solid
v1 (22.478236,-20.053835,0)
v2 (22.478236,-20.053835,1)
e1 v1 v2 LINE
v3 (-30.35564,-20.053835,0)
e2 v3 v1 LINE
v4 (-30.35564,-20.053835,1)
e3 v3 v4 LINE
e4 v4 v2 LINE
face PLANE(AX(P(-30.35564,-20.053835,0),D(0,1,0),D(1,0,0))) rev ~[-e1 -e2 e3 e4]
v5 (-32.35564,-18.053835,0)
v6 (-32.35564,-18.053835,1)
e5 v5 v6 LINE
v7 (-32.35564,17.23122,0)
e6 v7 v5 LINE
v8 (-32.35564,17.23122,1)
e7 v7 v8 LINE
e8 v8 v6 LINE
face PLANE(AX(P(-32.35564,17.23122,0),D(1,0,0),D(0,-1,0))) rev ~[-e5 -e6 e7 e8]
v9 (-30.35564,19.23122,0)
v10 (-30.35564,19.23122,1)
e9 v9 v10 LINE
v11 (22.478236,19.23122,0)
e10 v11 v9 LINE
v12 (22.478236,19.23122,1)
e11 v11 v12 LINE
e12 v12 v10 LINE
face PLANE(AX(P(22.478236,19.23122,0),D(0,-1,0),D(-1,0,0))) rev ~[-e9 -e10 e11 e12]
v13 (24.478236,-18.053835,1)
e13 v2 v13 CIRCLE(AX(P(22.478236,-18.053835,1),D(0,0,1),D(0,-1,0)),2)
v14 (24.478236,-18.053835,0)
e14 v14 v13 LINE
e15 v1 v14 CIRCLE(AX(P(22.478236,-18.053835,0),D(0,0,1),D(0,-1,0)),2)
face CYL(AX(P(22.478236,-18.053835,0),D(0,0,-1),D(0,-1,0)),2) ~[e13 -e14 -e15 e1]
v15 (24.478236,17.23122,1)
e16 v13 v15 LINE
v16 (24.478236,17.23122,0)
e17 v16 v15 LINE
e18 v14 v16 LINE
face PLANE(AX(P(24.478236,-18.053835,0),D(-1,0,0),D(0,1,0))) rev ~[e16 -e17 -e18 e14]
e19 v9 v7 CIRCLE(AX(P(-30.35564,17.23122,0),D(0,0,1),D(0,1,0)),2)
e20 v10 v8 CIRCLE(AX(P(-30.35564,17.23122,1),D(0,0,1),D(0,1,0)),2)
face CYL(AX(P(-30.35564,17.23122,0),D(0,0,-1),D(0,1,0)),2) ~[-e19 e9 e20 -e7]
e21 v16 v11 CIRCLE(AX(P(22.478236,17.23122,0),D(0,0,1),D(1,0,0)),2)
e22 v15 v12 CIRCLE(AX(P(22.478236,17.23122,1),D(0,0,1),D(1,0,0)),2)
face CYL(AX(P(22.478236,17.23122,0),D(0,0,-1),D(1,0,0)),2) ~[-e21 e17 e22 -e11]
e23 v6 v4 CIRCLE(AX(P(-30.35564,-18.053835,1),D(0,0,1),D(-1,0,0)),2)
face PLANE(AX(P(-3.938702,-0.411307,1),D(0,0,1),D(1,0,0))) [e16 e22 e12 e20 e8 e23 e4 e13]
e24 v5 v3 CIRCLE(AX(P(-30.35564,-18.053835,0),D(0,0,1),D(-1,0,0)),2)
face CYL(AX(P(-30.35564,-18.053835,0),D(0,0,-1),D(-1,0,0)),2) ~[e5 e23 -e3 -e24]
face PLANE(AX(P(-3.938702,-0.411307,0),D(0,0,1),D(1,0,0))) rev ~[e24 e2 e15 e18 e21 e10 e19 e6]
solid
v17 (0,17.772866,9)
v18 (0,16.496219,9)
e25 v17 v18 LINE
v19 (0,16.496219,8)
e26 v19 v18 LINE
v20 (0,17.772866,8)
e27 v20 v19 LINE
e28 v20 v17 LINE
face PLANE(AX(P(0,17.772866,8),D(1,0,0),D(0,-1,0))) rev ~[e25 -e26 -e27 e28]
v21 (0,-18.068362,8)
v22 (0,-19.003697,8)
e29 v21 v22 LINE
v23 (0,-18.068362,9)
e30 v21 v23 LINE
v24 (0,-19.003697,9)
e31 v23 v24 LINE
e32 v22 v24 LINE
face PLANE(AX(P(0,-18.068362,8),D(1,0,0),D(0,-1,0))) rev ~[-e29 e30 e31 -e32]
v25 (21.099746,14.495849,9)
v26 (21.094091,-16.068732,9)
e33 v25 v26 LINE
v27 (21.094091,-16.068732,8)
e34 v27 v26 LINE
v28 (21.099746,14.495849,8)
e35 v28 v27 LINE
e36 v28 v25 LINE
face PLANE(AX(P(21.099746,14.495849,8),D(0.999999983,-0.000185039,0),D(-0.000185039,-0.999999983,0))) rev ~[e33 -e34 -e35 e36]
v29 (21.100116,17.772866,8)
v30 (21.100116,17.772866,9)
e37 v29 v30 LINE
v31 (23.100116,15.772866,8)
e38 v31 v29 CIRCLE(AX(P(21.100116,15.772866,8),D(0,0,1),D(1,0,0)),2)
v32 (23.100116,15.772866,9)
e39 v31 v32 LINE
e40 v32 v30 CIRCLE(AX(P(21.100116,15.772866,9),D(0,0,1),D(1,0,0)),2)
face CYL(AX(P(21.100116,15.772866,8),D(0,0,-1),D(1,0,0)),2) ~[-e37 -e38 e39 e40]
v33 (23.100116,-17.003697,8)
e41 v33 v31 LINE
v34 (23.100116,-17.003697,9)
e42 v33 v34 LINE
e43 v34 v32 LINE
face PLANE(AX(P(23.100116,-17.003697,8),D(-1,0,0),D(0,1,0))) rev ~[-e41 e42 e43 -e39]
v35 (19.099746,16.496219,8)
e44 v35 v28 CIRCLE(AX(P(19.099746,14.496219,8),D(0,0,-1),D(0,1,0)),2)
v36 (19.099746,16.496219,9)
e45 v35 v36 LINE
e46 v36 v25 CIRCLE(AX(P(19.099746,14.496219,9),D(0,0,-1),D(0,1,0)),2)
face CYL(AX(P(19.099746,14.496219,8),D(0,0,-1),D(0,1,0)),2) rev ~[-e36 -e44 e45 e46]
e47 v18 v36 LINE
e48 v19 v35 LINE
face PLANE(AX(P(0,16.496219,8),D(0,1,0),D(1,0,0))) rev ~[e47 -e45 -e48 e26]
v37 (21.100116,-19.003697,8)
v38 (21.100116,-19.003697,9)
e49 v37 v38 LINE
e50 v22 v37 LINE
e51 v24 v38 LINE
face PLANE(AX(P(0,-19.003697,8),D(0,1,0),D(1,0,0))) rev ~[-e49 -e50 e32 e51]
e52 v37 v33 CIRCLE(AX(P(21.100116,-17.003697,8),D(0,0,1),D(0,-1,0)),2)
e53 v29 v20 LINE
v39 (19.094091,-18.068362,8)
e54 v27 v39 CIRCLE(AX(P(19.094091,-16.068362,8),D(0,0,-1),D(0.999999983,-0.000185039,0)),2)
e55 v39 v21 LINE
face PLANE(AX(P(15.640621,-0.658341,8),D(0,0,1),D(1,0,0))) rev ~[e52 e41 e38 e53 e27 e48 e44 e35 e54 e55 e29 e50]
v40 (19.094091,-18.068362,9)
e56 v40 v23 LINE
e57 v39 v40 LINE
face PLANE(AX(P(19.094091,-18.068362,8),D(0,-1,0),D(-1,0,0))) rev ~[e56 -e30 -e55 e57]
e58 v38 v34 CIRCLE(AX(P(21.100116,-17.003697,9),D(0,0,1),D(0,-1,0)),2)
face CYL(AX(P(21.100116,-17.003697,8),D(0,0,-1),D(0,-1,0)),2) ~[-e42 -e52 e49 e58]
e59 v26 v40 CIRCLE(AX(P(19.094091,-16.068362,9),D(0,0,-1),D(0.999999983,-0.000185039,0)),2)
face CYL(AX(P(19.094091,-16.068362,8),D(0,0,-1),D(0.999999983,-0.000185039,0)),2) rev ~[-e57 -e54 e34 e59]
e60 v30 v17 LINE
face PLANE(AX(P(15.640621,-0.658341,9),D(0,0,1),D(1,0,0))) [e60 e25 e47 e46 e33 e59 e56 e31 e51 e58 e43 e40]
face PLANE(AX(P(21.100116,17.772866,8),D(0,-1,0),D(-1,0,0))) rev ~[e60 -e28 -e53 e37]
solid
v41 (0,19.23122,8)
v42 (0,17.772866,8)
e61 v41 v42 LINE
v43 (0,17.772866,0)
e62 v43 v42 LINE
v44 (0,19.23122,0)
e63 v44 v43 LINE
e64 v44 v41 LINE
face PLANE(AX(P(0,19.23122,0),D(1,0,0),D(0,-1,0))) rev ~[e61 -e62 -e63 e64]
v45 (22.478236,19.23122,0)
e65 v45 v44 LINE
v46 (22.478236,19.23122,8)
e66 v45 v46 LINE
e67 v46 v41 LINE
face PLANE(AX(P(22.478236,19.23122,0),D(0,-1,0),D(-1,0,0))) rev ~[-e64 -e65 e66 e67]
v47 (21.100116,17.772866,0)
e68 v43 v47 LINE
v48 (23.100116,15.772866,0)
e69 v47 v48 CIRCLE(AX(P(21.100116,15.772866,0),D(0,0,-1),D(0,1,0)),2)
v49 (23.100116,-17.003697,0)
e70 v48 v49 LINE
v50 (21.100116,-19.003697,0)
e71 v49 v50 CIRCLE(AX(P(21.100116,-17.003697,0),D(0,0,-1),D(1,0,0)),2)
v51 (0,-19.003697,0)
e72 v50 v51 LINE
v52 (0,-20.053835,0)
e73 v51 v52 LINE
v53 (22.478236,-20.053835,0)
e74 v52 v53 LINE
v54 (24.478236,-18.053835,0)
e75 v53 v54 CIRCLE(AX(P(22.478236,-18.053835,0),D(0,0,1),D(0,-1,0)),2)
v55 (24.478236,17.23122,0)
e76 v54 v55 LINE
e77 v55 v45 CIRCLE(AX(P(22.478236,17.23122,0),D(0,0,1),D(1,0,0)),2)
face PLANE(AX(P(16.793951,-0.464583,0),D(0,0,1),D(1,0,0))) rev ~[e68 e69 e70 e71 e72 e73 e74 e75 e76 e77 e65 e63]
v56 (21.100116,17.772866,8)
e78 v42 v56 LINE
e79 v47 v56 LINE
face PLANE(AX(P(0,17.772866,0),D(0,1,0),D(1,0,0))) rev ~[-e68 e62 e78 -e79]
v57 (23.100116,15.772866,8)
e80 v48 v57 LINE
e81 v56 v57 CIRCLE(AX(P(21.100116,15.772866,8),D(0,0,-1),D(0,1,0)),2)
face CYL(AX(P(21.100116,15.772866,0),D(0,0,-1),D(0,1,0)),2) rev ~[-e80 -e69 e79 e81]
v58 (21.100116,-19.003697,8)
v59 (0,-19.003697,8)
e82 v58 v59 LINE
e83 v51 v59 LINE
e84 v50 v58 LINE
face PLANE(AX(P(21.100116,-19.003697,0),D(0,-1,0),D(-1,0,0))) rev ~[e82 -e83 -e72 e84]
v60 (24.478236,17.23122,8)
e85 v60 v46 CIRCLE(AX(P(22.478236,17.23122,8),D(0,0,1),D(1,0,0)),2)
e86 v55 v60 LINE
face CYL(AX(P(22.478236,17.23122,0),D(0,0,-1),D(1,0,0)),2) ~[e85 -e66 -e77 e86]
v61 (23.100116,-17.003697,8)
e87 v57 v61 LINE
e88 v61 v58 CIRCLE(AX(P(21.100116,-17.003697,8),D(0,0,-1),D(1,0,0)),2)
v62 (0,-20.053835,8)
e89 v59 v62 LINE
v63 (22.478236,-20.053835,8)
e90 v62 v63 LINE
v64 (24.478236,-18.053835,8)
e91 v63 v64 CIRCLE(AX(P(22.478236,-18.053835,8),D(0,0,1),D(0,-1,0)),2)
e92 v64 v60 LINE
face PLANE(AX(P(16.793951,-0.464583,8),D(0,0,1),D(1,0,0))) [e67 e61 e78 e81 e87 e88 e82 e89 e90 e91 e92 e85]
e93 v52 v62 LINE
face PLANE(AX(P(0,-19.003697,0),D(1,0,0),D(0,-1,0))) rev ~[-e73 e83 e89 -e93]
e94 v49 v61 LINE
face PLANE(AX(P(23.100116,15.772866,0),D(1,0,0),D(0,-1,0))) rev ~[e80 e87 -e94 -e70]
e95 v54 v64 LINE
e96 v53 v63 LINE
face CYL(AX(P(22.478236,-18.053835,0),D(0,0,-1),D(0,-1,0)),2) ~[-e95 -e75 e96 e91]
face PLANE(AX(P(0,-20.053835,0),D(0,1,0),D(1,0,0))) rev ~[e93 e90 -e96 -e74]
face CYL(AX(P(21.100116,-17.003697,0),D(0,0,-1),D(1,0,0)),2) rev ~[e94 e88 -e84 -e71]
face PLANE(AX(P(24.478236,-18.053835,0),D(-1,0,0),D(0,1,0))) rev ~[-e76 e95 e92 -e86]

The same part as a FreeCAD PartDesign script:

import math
import FreeCAD as App
import Part
import Sketcher
from FreeCAD import Vector

doc = App.newDocument("Part")
body = doc.addObject("PartDesign::Body", "Body")

sketch1 = doc.addObject("Sketcher::SketchObject", "Sketch")
body.addObject(sketch1)
sketch1.AttachmentSupport = (doc.XY_Plane, [""])
sketch1.MapMode = "FlatFace"
sketch1.addGeometry([
    Part.LineSegment(Vector(22.5, 19.2, 0), Vector(-30.4, 19.2, 0)),
    Part.ArcOfCircle(Part.Circle(Vector(-30.4, 17.2, 0), Vector(0, 0, 1), 2), math.radians(90), math.radians(180)),
    Part.LineSegment(Vector(-32.4, 17.2, 0), Vector(-32.4, -18.1, 0)),
    Part.ArcOfCircle(Part.Circle(Vector(-30.4, -18.1, 0), Vector(0, 0, 1), 2), math.radians(180), math.radians(270)),
    Part.LineSegment(Vector(-30.4, -20.1, 0), Vector(22.5, -20.1, 0)),
    Part.ArcOfCircle(Part.Circle(Vector(22.5, -18.1, 0), Vector(0, 0, 1), 2), math.radians(-90), math.radians(0)),
    Part.LineSegment(Vector(24.5, -18.1, 0), Vector(24.5, 17.2, 0)),
    Part.ArcOfCircle(Part.Circle(Vector(22.5, 17.2, 0), Vector(0, 0, 1), 2), math.radians(0), math.radians(90)),
], False)
sketch1.addConstraint([
    Sketcher.Constraint("Tangent", 0, 2, 1, 1),
    Sketcher.Constraint("Tangent", 1, 2, 2, 1),
    Sketcher.Constraint("Tangent", 2, 2, 3, 1),
    Sketcher.Constraint("Tangent", 3, 2, 4, 1),
    Sketcher.Constraint("Tangent", 4, 2, 5, 1),
    Sketcher.Constraint("Tangent", 5, 2, 6, 1),
    Sketcher.Constraint("Tangent", 6, 2, 7, 1),
    Sketcher.Constraint("Tangent", 7, 2, 0, 1),
    Sketcher.Constraint("Horizontal", 0),
    Sketcher.Constraint("Vertical", 2),
    Sketcher.Constraint("Horizontal", 4),
    Sketcher.Constraint("Vertical", 6),
    Sketcher.Constraint("Equal", 1, 3),
    Sketcher.Constraint("Equal", 3, 5),
    Sketcher.Constraint("Equal", 5, 7),
    Sketcher.Constraint("Radius", 1, 2.0),
    Sketcher.Constraint("DistanceX", 0, 2, 0, 1, 52.833876),
    Sketcher.Constraint("DistanceY", 2, 2, 2, 1, 35.285055),
    Sketcher.Constraint("DistanceX", 1, 3, -1, 1, 30.35564),
    Sketcher.Constraint("DistanceY", -1, 1, 1, 3, 17.23122),
])
pad1 = doc.addObject("PartDesign::Pad", "Pad")
body.addObject(pad1)
pad1.Profile = sketch1
pad1.Length = 1
body2 = doc.addObject("PartDesign::Body", "Body001")

sketch2 = doc.addObject("Sketcher::SketchObject", "Sketch001")
body2.addObject(sketch2)
sketch2.AttachmentSupport = (doc.getObject("XY_Plane001"), [""])
sketch2.MapMode = "FlatFace"
sketch2.addGeometry([
    Part.LineSegment(Vector(24.5, -18.1, 0), Vector(24.5, 17.2, 0)),
    Part.ArcOfCircle(Part.Circle(Vector(22.5, 17.2, 0), Vector(0, 0, 1), 2), math.radians(0), math.radians(90)),
    Part.LineSegment(Vector(22.5, 19.2, 0), Vector(0, 19.2, 0)),
    Part.LineSegment(Vector(0, 19.2, 0), Vector(0, 17.8, 0)),
    Part.LineSegment(Vector(0, 17.8, 0), Vector(21.1, 17.8, 0)),
    Part.ArcOfCircle(Part.Circle(Vector(21.1, 15.8, 0), Vector(0, 0, 1), 2), math.radians(0), math.radians(90)),
    Part.LineSegment(Vector(23.1, 15.8, 0), Vector(23.1, -17, 0)),
    Part.ArcOfCircle(Part.Circle(Vector(21.1, -17, 0), Vector(0, 0, 1), 2), math.radians(-90), math.radians(0)),
    Part.LineSegment(Vector(21.1, -19, 0), Vector(0, -19, 0)),
    Part.LineSegment(Vector(0, -19, 0), Vector(0, -20.1, 0)),
    Part.LineSegment(Vector(0, -20.1, 0), Vector(22.5, -20.1, 0)),
    Part.ArcOfCircle(Part.Circle(Vector(22.5, -18.1, 0), Vector(0, 0, 1), 2), math.radians(-90), math.radians(0)),
], False)
sketch2.addConstraint([
    Sketcher.Constraint("Tangent", 0, 2, 1, 1),
    Sketcher.Constraint("Tangent", 1, 2, 2, 1),
    Sketcher.Constraint("Coincident", 2, 2, 3, 1),
    Sketcher.Constraint("Coincident", 3, 2, 4, 1),
    Sketcher.Constraint("Tangent", 4, 2, 5, 2),
    Sketcher.Constraint("Tangent", 5, 1, 6, 1),
    Sketcher.Constraint("Tangent", 6, 2, 7, 2),
    Sketcher.Constraint("Tangent", 7, 1, 8, 1),
    Sketcher.Constraint("Coincident", 8, 2, 9, 1),
    Sketcher.Constraint("Coincident", 9, 2, 10, 1),
    Sketcher.Constraint("Tangent", 10, 2, 11, 1),
    Sketcher.Constraint("Tangent", 11, 2, 0, 1),
    Sketcher.Constraint("Vertical", 0),
    Sketcher.Constraint("Horizontal", 2),
    Sketcher.Constraint("Vertical", 3),
    Sketcher.Constraint("Horizontal", 4),
    Sketcher.Constraint("Vertical", 6),
    Sketcher.Constraint("Horizontal", 8),
    Sketcher.Constraint("Vertical", 9),
    Sketcher.Constraint("Horizontal", 10),
    Sketcher.Constraint("Equal", 1, 5),
    Sketcher.Constraint("Equal", 5, 7),
    Sketcher.Constraint("Equal", 7, 11),
    Sketcher.Constraint("PointOnObject", 2, 2, -2),
    Sketcher.Constraint("PointOnObject", 8, 2, -2),
    Sketcher.Constraint("Radius", 1, 2.0),
    Sketcher.Constraint("DistanceY", 11, 3, 5, 3, 33.826701),
    Sketcher.Constraint("DistanceX", 2, 2, 2, 1, 22.478236),
    Sketcher.Constraint("DistanceX", 4, 1, 4, 2, 21.100116),
    Sketcher.Constraint("DistanceY", 0, 1, 0, 2, 35.285055),
    Sketcher.Constraint("DistanceY", 6, 2, 6, 1, 32.776563),
    Sketcher.Constraint("DistanceY", -1, 1, 1, 3, 17.23122),
])
pad2 = doc.addObject("PartDesign::Pad", "Pad001")
body2.addObject(pad2)
pad2.Profile = sketch2
pad2.Length = 8
body3 = doc.addObject("PartDesign::Body", "Body002")

sketch3 = doc.addObject("Sketcher::SketchObject", "Sketch002")
body3.addObject(sketch3)
sketch3.AttachmentSupport = (doc.getObject("XY_Plane002"), [""])
sketch3.MapMode = "FlatFace"
sketch3.AttachmentOffset = App.Placement(Vector(0, 0, 8), App.Rotation())
sketch3.addGeometry([
    Part.LineSegment(Vector(0, -19, 0), Vector(21.1, -19, 0)),
    Part.ArcOfCircle(Part.Circle(Vector(21.1, -17, 0), Vector(0, 0, 1), 2), math.radians(-90), math.radians(0)),
    Part.LineSegment(Vector(23.1, -17, 0), Vector(23.1, 15.8, 0)),
    Part.ArcOfCircle(Part.Circle(Vector(21.1, 15.8, 0), Vector(0, 0, 1), 2), math.radians(0), math.radians(90)),
    Part.LineSegment(Vector(21.1, 17.8, 0), Vector(0, 17.8, 0)),
    Part.LineSegment(Vector(0, 17.8, 0), Vector(0, 16.5, 0)),
    Part.LineSegment(Vector(0, 16.5, 0), Vector(19.1, 16.5, 0)),
    Part.ArcOfCircle(Part.Circle(Vector(19.1, 14.5, 0), Vector(0, 0, 1), 2), math.radians(0), math.radians(90)),
    Part.LineSegment(Vector(21.1, 14.5, 0), Vector(21.1, -16.1, 0)),
    Part.ArcOfCircle(Part.Circle(Vector(19.1, -16.1, 0), Vector(0, 0, 1), 2), math.radians(-90), math.radians(0)),
    Part.LineSegment(Vector(19.1, -18.1, 0), Vector(0, -18.1, 0)),
    Part.LineSegment(Vector(0, -18.1, 0), Vector(0, -19, 0)),
], False)
sketch3.addConstraint([
    Sketcher.Constraint("Tangent", 0, 2, 1, 1),
    Sketcher.Constraint("Tangent", 1, 2, 2, 1),
    Sketcher.Constraint("Tangent", 2, 2, 3, 1),
    Sketcher.Constraint("Tangent", 3, 2, 4, 1),
    Sketcher.Constraint("Coincident", 4, 2, 5, 1),
    Sketcher.Constraint("Coincident", 5, 2, 6, 1),
    Sketcher.Constraint("Tangent", 6, 2, 7, 2),
    Sketcher.Constraint("Tangent", 7, 1, 8, 1),
    Sketcher.Constraint("Tangent", 8, 2, 9, 2),
    Sketcher.Constraint("Tangent", 9, 1, 10, 1),
    Sketcher.Constraint("Coincident", 10, 2, 11, 1),
    Sketcher.Constraint("Coincident", 11, 2, 0, 1),
    Sketcher.Constraint("Horizontal", 0),
    Sketcher.Constraint("Vertical", 2),
    Sketcher.Constraint("Horizontal", 4),
    Sketcher.Constraint("Vertical", 5),
    Sketcher.Constraint("Horizontal", 6),
    Sketcher.Constraint("Horizontal", 10),
    Sketcher.Constraint("Vertical", 11),
    Sketcher.Constraint("Equal", 1, 3),
    Sketcher.Constraint("Equal", 3, 7),
    Sketcher.Constraint("Equal", 7, 9),
    Sketcher.Constraint("PointOnObject", 4, 2, -2),
    Sketcher.Constraint("PointOnObject", 10, 2, -2),
    Sketcher.Constraint("Radius", 1, 2.0),
    Sketcher.Constraint("DistanceX", 10, 2, 10, 1, 19.094091),
    Sketcher.Constraint("Distance", 8, 30.564581),
    Sketcher.Constraint("DistanceX", 0, 1, 0, 2, 21.100116),
    Sketcher.Constraint("DistanceX", 6, 1, 6, 2, 19.099746),
    Sketcher.Constraint("DistanceY", 2, 1, 2, 2, 32.776563),
    Sketcher.Constraint("DistanceY", 5, 2, 5, 1, 1.276648),
    Sketcher.Constraint("DistanceY", -1, 1, 7, 3, 14.496219),
])
pad3 = doc.addObject("PartDesign::Pad", "Pad002")
body3.addObject(pad3)
pad3.Profile = sketch3
pad3.Length = 1

doc.recompute()
